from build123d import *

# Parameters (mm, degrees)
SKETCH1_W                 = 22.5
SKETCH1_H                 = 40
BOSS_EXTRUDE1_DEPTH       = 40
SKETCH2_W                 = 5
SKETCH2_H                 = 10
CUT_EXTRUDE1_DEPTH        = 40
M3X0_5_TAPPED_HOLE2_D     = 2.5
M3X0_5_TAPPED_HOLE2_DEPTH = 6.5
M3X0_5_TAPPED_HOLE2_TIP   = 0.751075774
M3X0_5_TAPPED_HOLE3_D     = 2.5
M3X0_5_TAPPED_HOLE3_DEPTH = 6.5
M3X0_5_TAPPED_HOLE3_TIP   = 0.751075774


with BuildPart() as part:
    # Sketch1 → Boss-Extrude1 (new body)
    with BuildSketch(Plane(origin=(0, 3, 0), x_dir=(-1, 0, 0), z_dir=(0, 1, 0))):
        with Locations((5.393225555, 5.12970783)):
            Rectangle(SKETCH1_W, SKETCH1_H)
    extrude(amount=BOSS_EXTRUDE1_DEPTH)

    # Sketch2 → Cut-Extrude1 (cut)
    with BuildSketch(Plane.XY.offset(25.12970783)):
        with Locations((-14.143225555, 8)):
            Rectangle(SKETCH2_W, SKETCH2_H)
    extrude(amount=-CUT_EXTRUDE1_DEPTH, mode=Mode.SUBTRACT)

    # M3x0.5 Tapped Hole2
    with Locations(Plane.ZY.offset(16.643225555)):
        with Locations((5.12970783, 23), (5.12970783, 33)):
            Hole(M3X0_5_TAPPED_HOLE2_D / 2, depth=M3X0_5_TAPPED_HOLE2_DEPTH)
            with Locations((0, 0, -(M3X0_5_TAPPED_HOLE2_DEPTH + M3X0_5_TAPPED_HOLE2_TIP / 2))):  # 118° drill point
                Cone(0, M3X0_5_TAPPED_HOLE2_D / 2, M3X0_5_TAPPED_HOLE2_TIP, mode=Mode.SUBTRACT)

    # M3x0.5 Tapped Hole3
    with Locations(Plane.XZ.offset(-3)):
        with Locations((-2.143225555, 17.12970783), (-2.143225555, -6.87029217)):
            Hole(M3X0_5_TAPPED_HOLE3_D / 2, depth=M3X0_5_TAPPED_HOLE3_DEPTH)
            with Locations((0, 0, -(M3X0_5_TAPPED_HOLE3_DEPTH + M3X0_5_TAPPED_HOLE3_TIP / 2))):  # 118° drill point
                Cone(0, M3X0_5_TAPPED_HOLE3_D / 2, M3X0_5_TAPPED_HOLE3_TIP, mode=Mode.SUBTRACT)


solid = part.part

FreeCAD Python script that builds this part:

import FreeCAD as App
import Part
import Sketcher
from FreeCAD import Vector

doc = App.newDocument("Part")
params = doc.addObject("Spreadsheet::Sheet", "Params")
for row, (alias, value) in enumerate([
    ("sketch1_height", "40 mm"),
    ("sketch1_width", "22.5 mm"),
    ("pad1_length", "40 mm"),
    ("sketch2_width", "5 mm"),
    ("sketch2_height", "10 mm"),
    ("pocket1_length", "40 mm"),
    ("sketch3_diameter", "2.5 mm"),
    ("hole_diameter", "2.5 mm"),
    ("hole_depth", "6.5 mm"),
    ("sketch4_diameter", "2.5 mm"),
    ("hole2_diameter", "2.5 mm"),
    ("hole2_depth", "6.5 mm"),
], start=1):
    params.set(f"A{row}", alias)
    params.set(f"B{row}", "=" + value)
    params.setAlias(f"B{row}", alias)

body = doc.addObject("PartDesign::Body", "Body")

# Sketch on XZ plane
sketch1 = body.newObject("Sketcher::SketchObject", "Sketch")
sketch1.AttachmentSupport = (doc.getObject("XZ_Plane"), [""])
sketch1.MapMode = "FlatFace"
sketch1.AttachmentOffset = App.Placement(Vector(0, 0, -3), App.Rotation())
sketch1.addGeometry([
    Part.LineSegment(Vector(6, 25, 0), Vector(6, -15, 0)),
    Part.LineSegment(Vector(6, -15, 0), Vector(-17, -15, 0)),
    Part.LineSegment(Vector(-17, -15, 0), Vector(-17, 25, 0)),
    Part.LineSegment(Vector(-17, 25, 0), Vector(6, 25, 0)),
], False)
sketch1.addConstraint([
    Sketcher.Constraint("Coincident", 0, 2, 1, 1),
    Sketcher.Constraint("Coincident", 1, 2, 2, 1),
    Sketcher.Constraint("Coincident", 2, 2, 3, 1),
    Sketcher.Constraint("Coincident", 3, 2, 0, 1),
    Sketcher.Constraint("Vertical", 0),
    Sketcher.Constraint("Horizontal", 1),
    Sketcher.Constraint("Vertical", 2),
    Sketcher.Constraint("Horizontal", 3),
    Sketcher.Constraint("DistanceY", 0, 2, 0, 1, 40.0),
    Sketcher.Constraint("DistanceX", 1, 2, 1, 1, 22.5),
    Sketcher.Constraint("DistanceX", -1, 1, 0, 2, 5.856774),
    Sketcher.Constraint("DistanceY", 0, 2, -1, 1, 14.870292),
])
sketch1.setExpression("Constraints[8]", "Params.sketch1_height")
sketch1.setExpression("Constraints[9]", "Params.sketch1_width")
pad1 = body.newObject("PartDesign::Pad", "Pad")
pad1.Profile = sketch1
pad1.setExpression("Length", "Params.pad1_length")
pad1.Reversed = True

# Sketch on XY plane
sketch2 = body.newObject("Sketcher::SketchObject", "Sketch001")
sketch2.AttachmentSupport = (doc.getObject("XY_Plane"), [""])
sketch2.MapMode = "FlatFace"
sketch2.AttachmentOffset = App.Placement(Vector(0, 0, 25.129708), App.Rotation())
sketch2.addGeometry([
    Part.LineSegment(Vector(-17, 13, 0), Vector(-17, 3, 0)),
    Part.LineSegment(Vector(-17, 3, 0), Vector(-12, 3, 0)),
    Part.LineSegment(Vector(-12, 3, 0), Vector(-12, 13, 0)),
    Part.LineSegment(Vector(-12, 13, 0), Vector(-17, 13, 0)),
], False)
sketch2.addConstraint([
    Sketcher.Constraint("Coincident", 0, 2, 1, 1),
    Sketcher.Constraint("Coincident", 1, 2, 2, 1),
    Sketcher.Constraint("Coincident", 2, 2, 3, 1),
    Sketcher.Constraint("Coincident", 3, 2, 0, 1),
    Sketcher.Constraint("Vertical", 0),
    Sketcher.Constraint("Horizontal", 1),
    Sketcher.Constraint("Vertical", 2),
    Sketcher.Constraint("Horizontal", 3),
    Sketcher.Constraint("DistanceX", 1, 1, 1, 2, 5.0),
    Sketcher.Constraint("DistanceY", 0, 2, 0, 1, 10.0),
    Sketcher.Constraint("DistanceY", -1, 1, 0, 2, 3.0),
    Sketcher.Constraint("DistanceX", 0, 2, -1, 1, 16.643226),
])
sketch2.setExpression("Constraints[8]", "Params.sketch2_width")
sketch2.setExpression("Constraints[9]", "Params.sketch2_height")
pocket1 = body.newObject("PartDesign::Pocket", "Pocket")
pocket1.Profile = sketch2
pocket1.setExpression("Length", "Params.pocket1_length")

# Sketch on YZ plane
sketch3 = body.newObject("Sketcher::SketchObject", "Sketch002")
sketch3.AttachmentSupport = (doc.getObject("YZ_Plane"), [""])
sketch3.MapMode = "FlatFace"
sketch3.AttachmentOffset = App.Placement(Vector(0, 0, -16.643226), App.Rotation())
sketch3.addGeometry([
    Part.Circle(Vector(23, 5.1, 0), Vector(0, 0, 1), 1.2),
    Part.Circle(Vector(33, 5.1, 0), Vector(0, 0, 1), 1.2),
], False)
sketch3.addConstraint([
    Sketcher.Constraint("Equal", 0, 1),
    Sketcher.Constraint("Horizontal", 0, 3, 1, 3),
    Sketcher.Constraint("Diameter", 0, 2.5),
    Sketcher.Constraint("DistanceX", -1, 1, 0, 3, 23.0),
    Sketcher.Constraint("DistanceX", -1, 1, 1, 3, 33.0),
    Sketcher.Constraint("DistanceY", -1, 1, 0, 3, 5.129708),
])
sketch3.setExpression("Constraints[2]", "Params.sketch3_diameter")
doc.recompute()
hole = body.newObject("PartDesign::Hole", "Hole")
hole.Profile = sketch3
hole.ThreadType = "None"
hole.setExpression("Diameter", "Params.hole_diameter")
hole.DepthType = "Dimension"
hole.setExpression("Depth", "Params.hole_depth")
hole.DrillPoint = "Angled"
hole.DrillPointAngle = 118
hole.Reversed = True

# Sketch on XZ plane
sketch4 = body.newObject("Sketcher::SketchObject", "Sketch003")
sketch4.AttachmentSupport = (doc.getObject("XZ_Plane"), [""])
sketch4.MapMode = "FlatFace"
sketch4.AttachmentOffset = App.Placement(Vector(0, 0, -3), App.Rotation())
sketch4.addGeometry([
    Part.Circle(Vector(-2.1, 17.1, 0), Vector(0, 0, 1), 1.2),
    Part.Circle(Vector(-2.1, -6.9, 0), Vector(0, 0, 1), 1.2),
], False)
sketch4.addConstraint([
    Sketcher.Constraint("Equal", 0, 1),
    Sketcher.Constraint("Vertical", 0, 3, 1, 3),
    Sketcher.Constraint("Diameter", 0, 2.5),
    Sketcher.Constraint("DistanceY", 1, 3, 0, 3, 24.0),
    Sketcher.Constraint("DistanceX", 0, 3, -1, 1, 2.143226),
    Sketcher.Constraint("DistanceY", -1, 1, 0, 3, 17.129708),
])
sketch4.setExpression("Constraints[2]", "Params.sketch4_diameter")
doc.recompute()
hole2 = body.newObject("PartDesign::Hole", "Hole001")
hole2.Profile = sketch4
hole2.ThreadType = "None"
hole2.setExpression("Diameter", "Params.hole2_diameter")
hole2.DepthType = "Dimension"
hole2.setExpression("Depth", "Params.hole2_depth")
hole2.DrillPoint = "Angled"
hole2.DrillPointAngle = 118

doc.recompute()
